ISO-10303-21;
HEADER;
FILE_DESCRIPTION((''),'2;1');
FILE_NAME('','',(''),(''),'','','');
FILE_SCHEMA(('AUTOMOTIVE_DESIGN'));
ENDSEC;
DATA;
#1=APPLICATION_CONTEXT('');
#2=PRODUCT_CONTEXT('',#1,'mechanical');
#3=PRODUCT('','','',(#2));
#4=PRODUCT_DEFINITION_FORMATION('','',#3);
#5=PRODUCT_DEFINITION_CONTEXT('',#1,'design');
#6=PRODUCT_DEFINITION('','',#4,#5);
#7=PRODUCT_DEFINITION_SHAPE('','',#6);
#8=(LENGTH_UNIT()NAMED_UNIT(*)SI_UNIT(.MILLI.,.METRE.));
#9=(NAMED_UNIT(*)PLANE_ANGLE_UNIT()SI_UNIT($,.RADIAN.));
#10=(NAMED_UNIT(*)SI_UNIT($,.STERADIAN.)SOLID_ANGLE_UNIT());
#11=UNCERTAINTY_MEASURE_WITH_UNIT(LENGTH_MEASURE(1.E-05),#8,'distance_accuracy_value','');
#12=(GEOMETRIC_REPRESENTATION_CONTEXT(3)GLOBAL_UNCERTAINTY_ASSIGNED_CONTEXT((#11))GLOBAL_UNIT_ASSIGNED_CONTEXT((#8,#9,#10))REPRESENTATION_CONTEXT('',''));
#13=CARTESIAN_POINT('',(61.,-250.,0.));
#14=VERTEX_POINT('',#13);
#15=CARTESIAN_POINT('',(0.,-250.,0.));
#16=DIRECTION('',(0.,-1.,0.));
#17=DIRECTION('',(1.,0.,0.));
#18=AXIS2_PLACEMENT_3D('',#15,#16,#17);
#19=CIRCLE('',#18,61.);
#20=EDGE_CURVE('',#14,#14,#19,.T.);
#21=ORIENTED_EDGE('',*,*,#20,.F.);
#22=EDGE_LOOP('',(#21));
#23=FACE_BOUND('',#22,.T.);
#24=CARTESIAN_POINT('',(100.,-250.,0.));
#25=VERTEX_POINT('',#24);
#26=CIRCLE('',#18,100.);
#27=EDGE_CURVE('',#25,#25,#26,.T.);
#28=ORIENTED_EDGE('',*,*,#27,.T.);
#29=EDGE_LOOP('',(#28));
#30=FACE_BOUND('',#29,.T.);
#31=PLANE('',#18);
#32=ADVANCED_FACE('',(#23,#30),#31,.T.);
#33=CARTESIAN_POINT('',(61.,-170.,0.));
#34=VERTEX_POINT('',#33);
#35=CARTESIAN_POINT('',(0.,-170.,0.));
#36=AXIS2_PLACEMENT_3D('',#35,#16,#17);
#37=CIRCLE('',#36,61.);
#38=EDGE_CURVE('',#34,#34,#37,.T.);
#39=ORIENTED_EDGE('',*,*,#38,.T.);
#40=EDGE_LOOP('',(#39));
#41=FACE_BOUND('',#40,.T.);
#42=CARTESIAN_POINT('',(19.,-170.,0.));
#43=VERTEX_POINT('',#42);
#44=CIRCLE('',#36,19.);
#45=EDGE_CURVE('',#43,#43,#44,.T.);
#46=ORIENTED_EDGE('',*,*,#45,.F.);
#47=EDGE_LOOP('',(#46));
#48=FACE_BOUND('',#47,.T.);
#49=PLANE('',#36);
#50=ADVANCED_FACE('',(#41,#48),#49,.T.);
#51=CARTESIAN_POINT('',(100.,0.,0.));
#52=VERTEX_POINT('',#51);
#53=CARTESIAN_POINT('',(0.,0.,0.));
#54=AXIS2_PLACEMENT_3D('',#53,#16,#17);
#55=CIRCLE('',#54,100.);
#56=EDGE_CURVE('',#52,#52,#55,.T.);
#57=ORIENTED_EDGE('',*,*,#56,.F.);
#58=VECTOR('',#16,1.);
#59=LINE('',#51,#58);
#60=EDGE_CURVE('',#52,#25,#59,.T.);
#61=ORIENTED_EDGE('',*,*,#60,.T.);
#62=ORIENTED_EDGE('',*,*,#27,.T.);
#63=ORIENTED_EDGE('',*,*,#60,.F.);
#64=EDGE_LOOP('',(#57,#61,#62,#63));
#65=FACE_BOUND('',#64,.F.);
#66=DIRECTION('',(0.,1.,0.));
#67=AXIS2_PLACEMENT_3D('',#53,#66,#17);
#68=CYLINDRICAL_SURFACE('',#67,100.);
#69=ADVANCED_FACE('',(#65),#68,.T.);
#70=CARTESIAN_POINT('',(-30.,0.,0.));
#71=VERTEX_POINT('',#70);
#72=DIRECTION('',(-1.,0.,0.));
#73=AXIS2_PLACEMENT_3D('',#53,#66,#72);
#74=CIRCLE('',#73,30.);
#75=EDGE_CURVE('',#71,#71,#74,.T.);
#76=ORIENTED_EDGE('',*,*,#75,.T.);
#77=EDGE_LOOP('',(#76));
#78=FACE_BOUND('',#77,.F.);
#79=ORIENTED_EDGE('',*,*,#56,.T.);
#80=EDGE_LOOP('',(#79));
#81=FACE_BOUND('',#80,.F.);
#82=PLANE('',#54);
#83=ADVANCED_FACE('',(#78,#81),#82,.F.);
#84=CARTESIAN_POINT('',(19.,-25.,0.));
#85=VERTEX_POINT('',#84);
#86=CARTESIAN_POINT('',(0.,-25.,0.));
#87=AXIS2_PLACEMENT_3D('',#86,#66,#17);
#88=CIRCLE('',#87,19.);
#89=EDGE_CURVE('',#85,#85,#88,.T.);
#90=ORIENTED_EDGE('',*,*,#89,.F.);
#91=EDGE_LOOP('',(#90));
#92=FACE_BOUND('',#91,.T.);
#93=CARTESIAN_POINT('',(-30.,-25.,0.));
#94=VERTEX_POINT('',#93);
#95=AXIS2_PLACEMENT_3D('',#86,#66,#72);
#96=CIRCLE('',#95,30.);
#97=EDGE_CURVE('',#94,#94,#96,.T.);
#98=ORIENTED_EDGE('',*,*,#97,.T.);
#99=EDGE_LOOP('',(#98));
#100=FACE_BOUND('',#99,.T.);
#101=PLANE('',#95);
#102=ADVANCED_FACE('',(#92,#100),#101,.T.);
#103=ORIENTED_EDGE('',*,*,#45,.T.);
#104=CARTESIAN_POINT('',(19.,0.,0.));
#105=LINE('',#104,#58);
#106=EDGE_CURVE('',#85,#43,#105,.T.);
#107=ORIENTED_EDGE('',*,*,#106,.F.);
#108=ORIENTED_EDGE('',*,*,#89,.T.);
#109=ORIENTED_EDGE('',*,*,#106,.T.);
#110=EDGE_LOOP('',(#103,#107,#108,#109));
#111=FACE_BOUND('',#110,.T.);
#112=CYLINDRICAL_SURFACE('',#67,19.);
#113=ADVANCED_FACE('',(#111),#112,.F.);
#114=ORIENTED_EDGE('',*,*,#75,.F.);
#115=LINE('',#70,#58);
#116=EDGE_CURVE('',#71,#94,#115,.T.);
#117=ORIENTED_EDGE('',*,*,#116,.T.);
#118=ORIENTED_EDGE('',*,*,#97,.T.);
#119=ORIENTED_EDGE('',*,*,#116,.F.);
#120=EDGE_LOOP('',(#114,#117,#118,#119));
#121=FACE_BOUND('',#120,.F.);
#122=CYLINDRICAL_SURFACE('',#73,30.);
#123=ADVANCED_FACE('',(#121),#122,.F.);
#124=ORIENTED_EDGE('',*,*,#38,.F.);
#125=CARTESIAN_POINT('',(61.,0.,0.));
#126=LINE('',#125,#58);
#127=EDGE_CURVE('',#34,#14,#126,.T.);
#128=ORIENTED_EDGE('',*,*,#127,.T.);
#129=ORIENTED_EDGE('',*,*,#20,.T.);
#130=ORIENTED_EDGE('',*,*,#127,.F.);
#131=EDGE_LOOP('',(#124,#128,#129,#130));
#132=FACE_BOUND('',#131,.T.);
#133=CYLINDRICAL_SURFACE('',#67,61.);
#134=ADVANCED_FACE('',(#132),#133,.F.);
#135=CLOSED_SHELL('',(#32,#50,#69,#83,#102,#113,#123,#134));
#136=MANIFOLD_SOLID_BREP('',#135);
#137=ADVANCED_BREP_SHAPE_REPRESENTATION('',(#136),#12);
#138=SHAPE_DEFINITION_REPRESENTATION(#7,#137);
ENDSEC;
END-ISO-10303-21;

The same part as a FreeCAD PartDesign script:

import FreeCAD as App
import Part
import Sketcher
Q = App.Units.Quantity

doc = App.newDocument("Part")
params = doc.addObject("Spreadsheet::Sheet", "Params")
for row, (alias, value) in enumerate([
    ("sketch1_diameter", "200 mm"),
    ("sketch1_diameter2", "122 mm"),
    ("pad1_length", "250 mm"),
    ("sketch2_diameter", "122 mm"),
    ("sketch2_diameter2", "38 mm"),
    ("pad2_length", "170 mm"),
    ("sketch3_diameter", "60 mm"),
    ("sketch3_diameter2", "38 mm"),
    ("pocket1_length", "25 mm"),
], start=1):
    params.set(f"A{row}", alias)
    params.set(f"B{row}", "=" + value)
    params.setAlias(f"B{row}", alias)

body = doc.addObject("PartDesign::Body", "Body")

# Sketch on XZ plane
sketch1 = doc.addObject("Sketcher::SketchObject", "Sketch")
body.addObject(sketch1)
sketch1.AttachmentSupport = (doc.XZ_Plane, [""])
sketch1.MapMode = "FlatFace"
sketch1.addGeometry([
    Part.Circle(App.Vector(0, 0, 0), App.Vector(0, 0, 1), 100),
    Part.Circle(App.Vector(0, 0, 0), App.Vector(0, 0, 1), 61),
], False)
sketch1.addConstraint([
    Sketcher.Constraint("Coincident", 0, 3, -1, 1),
    Sketcher.Constraint("Coincident", 1, 3, -1, 1),
    Sketcher.Constraint("Diameter", 0, Q("200 mm")),
    Sketcher.Constraint("Diameter", 1, Q("122 mm")),
])
sketch1.setExpression("Constraints[2]", "Params.sketch1_diameter")
sketch1.setExpression("Constraints[3]", "Params.sketch1_diameter2")
pad1 = doc.addObject("PartDesign::Pad", "Pad")
body.addObject(pad1)
pad1.Profile = sketch1
pad1.setExpression("Length", "Params.pad1_length")

# Sketch on XZ plane
sketch2 = doc.addObject("Sketcher::SketchObject", "Sketch001")
body.addObject(sketch2)
sketch2.AttachmentSupport = (doc.XZ_Plane, [""])
sketch2.MapMode = "FlatFace"
sketch2.addGeometry([
    Part.Circle(App.Vector(0, 0, 0), App.Vector(0, 0, 1), 61),
    Part.Circle(App.Vector(0, 0, 0), App.Vector(0, 0, 1), 19),
], False)
sketch2.addConstraint([
    Sketcher.Constraint("Coincident", 0, 3, -1, 1),
    Sketcher.Constraint("Coincident", 1, 3, -1, 1),
    Sketcher.Constraint("Diameter", 0, Q("122 mm")),
    Sketcher.Constraint("Diameter", 1, Q("38 mm")),
])
sketch2.setExpression("Constraints[2]", "Params.sketch2_diameter")
sketch2.setExpression("Constraints[3]", "Params.sketch2_diameter2")
pad2 = doc.addObject("PartDesign::Pad", "Pad001")
body.addObject(pad2)
pad2.Profile = sketch2
pad2.setExpression("Length", "Params.pad2_length")

# Sketch on XZ plane
sketch3 = doc.addObject("Sketcher::SketchObject", "Sketch002")
body.addObject(sketch3)
sketch3.AttachmentSupport = (doc.XZ_Plane, [""])
sketch3.MapMode = "FlatFace"
sketch3.addGeometry([
    Part.Circle(App.Vector(0, 0, 0), App.Vector(0, 0, 1), 30),
    Part.Circle(App.Vector(0, 0, 0), App.Vector(0, 0, 1), 19),
], False)
sketch3.addConstraint([
    Sketcher.Constraint("Coincident", 0, 3, -1, 1),
    Sketcher.Constraint("Coincident", 1, 3, -1, 1),
    Sketcher.Constraint("Diameter", 0, Q("60 mm")),
    Sketcher.Constraint("Diameter", 1, Q("38 mm")),
])
sketch3.setExpression("Constraints[2]", "Params.sketch3_diameter")
sketch3.setExpression("Constraints[3]", "Params.sketch3_diameter2")
pocket1 = doc.addObject("PartDesign::Pocket", "Pocket")
body.addObject(pocket1)
pocket1.Profile = sketch3
pocket1.setExpression("Length", "Params.pocket1_length")
pocket1.Reversed = True

doc.recompute()
